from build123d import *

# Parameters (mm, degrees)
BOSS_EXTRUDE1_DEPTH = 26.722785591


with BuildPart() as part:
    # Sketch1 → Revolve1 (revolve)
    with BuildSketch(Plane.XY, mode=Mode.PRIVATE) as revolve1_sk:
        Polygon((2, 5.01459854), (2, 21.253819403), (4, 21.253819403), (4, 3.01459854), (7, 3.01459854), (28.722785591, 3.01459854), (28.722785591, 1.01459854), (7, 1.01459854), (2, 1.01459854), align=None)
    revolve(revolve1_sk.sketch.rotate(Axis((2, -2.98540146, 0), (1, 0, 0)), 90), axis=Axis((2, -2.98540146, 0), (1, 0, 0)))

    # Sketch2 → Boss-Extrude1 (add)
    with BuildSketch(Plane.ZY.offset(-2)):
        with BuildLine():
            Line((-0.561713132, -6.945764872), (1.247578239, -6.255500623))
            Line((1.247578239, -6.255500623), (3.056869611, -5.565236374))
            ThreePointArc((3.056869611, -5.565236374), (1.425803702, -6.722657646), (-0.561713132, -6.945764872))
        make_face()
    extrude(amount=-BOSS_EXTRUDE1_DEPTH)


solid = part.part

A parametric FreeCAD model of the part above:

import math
import FreeCAD as App
import Part
import Sketcher

doc = App.newDocument("Part")
body = doc.addObject("PartDesign::Body", "Body")

# Sketch on XY plane
sketch1 = body.newObject("Sketcher::SketchObject", "Sketch")
sketch1.AttachmentSupport = (doc.getObject("XY_Plane"), [""])
sketch1.MapMode = "FlatFace"
sketch1.addGeometry([
    Part.LineSegment(App.Vector(2, 21.3, 0), App.Vector(2, 1, 0)),  # 0
    Part.LineSegment(App.Vector(2, 1, 0), App.Vector(28.7, 1, 0)),  # 1
    Part.LineSegment(App.Vector(28.7, 1, 0), App.Vector(28.7, 3, 0)),  # 2
    Part.LineSegment(App.Vector(28.7, 3, 0), App.Vector(4, 3, 0)),  # 3
    Part.LineSegment(App.Vector(4, 3, 0), App.Vector(4, 21.3, 0)),  # 4
    Part.LineSegment(App.Vector(4, 21.3, 0), App.Vector(2, 21.3, 0)),  # 5
], False)
sketch1.addGeometry(Part.LineSegment(App.Vector(2, -3, 0), App.Vector(28.7, -3, 0)), True)  # axis
sketch1.addConstraint([
    Sketcher.Constraint("Coincident", 0, 2, 1, 1),
    Sketcher.Constraint("Coincident", 1, 2, 2, 1),
    Sketcher.Constraint("Coincident", 2, 2, 3, 1),
    Sketcher.Constraint("Coincident", 3, 2, 4, 1),
    Sketcher.Constraint("Coincident", 4, 2, 5, 1),
    Sketcher.Constraint("Coincident", 5, 2, 0, 1),
    Sketcher.Constraint("Vertical", 0),
    Sketcher.Constraint("Horizontal", 1),
    Sketcher.Constraint("Vertical", 2),
    Sketcher.Constraint("Horizontal", 3),
    Sketcher.Constraint("Vertical", 4),
    Sketcher.Constraint("Horizontal", 5),
    Sketcher.Constraint("Horizontal", 6),
    Sketcher.Constraint("Vertical", 5, 2, 6, 1),
    Sketcher.Constraint("Vertical", 2, 2, 6, 2),
    Sketcher.Constraint("Equal", 5, 2),
    Sketcher.Constraint("DistanceX", 5, 2, 5, 1, 2.0),
    Sketcher.Constraint("DistanceX", -1, 1, 0, 2, 2.0),
    Sketcher.Constraint("DistanceY", 6, 1, 0, 2, 4.0),
    Sketcher.Constraint("DistanceY", 0, 2, 0, 1, 20.239221),
    Sketcher.Constraint("DistanceY", -1, 1, 0, 2, 1.014599),
    Sketcher.Constraint("DistanceX", 1, 1, 1, 2, 26.722786),
])
revolution = body.newObject("PartDesign::Revolution", "Revolution")
revolution.Profile = sketch1
revolution.ReferenceAxis = (sketch1, ["Axis0"])
revolution.Angle = 360

# Sketch on YZ plane
sketch2 = body.newObject("Sketcher::SketchObject", "Sketch001")
sketch2.AttachmentSupport = (doc.getObject("YZ_Plane"), [""])
sketch2.MapMode = "FlatFace"
sketch2.AttachmentOffset = App.Placement(App.Vector(0, 0, 2), App.Rotation())
sketch2.addGeometry([
    Part.LineSegment(App.Vector(-6.3, 1.2, 0), App.Vector(-6.9, -0.6, 0)),
    Part.ArcOfCircle(Part.Circle(App.Vector(-3, 0, 0), App.Vector(0, 0, 1), 4), math.radians(130), math.radians(188)),
    Part.LineSegment(App.Vector(-5.6, 3.1, 0), App.Vector(-6.3, 1.2, 0)),
], False)
sketch2.addConstraint([
    Sketcher.Constraint("Coincident", 0, 2, 1, 2),
    Sketcher.Constraint("Coincident", 1, 1, 2, 1),
    Sketcher.Constraint("Coincident", 2, 2, 0, 1),
    Sketcher.Constraint("PointOnObject", 1, 3, -1),
    Sketcher.Constraint("Parallel", 0, 2),
    Sketcher.Constraint("Equal", 0, 2),
    Sketcher.Constraint("Radius", 1, 4.0),
    Sketcher.Constraint("DistanceX", 1, 3, -1, 1, 2.985401),
    Sketcher.Constraint("DistanceX", 2, 2, -1, 1, 6.255501),
    Sketcher.Constraint("Distance", 0, 1.936492),
])
pad1 = body.newObject("PartDesign::Pad", "Pad")
pad1.Profile = sketch2
pad1.Length = 26.722786

doc.recompute()
